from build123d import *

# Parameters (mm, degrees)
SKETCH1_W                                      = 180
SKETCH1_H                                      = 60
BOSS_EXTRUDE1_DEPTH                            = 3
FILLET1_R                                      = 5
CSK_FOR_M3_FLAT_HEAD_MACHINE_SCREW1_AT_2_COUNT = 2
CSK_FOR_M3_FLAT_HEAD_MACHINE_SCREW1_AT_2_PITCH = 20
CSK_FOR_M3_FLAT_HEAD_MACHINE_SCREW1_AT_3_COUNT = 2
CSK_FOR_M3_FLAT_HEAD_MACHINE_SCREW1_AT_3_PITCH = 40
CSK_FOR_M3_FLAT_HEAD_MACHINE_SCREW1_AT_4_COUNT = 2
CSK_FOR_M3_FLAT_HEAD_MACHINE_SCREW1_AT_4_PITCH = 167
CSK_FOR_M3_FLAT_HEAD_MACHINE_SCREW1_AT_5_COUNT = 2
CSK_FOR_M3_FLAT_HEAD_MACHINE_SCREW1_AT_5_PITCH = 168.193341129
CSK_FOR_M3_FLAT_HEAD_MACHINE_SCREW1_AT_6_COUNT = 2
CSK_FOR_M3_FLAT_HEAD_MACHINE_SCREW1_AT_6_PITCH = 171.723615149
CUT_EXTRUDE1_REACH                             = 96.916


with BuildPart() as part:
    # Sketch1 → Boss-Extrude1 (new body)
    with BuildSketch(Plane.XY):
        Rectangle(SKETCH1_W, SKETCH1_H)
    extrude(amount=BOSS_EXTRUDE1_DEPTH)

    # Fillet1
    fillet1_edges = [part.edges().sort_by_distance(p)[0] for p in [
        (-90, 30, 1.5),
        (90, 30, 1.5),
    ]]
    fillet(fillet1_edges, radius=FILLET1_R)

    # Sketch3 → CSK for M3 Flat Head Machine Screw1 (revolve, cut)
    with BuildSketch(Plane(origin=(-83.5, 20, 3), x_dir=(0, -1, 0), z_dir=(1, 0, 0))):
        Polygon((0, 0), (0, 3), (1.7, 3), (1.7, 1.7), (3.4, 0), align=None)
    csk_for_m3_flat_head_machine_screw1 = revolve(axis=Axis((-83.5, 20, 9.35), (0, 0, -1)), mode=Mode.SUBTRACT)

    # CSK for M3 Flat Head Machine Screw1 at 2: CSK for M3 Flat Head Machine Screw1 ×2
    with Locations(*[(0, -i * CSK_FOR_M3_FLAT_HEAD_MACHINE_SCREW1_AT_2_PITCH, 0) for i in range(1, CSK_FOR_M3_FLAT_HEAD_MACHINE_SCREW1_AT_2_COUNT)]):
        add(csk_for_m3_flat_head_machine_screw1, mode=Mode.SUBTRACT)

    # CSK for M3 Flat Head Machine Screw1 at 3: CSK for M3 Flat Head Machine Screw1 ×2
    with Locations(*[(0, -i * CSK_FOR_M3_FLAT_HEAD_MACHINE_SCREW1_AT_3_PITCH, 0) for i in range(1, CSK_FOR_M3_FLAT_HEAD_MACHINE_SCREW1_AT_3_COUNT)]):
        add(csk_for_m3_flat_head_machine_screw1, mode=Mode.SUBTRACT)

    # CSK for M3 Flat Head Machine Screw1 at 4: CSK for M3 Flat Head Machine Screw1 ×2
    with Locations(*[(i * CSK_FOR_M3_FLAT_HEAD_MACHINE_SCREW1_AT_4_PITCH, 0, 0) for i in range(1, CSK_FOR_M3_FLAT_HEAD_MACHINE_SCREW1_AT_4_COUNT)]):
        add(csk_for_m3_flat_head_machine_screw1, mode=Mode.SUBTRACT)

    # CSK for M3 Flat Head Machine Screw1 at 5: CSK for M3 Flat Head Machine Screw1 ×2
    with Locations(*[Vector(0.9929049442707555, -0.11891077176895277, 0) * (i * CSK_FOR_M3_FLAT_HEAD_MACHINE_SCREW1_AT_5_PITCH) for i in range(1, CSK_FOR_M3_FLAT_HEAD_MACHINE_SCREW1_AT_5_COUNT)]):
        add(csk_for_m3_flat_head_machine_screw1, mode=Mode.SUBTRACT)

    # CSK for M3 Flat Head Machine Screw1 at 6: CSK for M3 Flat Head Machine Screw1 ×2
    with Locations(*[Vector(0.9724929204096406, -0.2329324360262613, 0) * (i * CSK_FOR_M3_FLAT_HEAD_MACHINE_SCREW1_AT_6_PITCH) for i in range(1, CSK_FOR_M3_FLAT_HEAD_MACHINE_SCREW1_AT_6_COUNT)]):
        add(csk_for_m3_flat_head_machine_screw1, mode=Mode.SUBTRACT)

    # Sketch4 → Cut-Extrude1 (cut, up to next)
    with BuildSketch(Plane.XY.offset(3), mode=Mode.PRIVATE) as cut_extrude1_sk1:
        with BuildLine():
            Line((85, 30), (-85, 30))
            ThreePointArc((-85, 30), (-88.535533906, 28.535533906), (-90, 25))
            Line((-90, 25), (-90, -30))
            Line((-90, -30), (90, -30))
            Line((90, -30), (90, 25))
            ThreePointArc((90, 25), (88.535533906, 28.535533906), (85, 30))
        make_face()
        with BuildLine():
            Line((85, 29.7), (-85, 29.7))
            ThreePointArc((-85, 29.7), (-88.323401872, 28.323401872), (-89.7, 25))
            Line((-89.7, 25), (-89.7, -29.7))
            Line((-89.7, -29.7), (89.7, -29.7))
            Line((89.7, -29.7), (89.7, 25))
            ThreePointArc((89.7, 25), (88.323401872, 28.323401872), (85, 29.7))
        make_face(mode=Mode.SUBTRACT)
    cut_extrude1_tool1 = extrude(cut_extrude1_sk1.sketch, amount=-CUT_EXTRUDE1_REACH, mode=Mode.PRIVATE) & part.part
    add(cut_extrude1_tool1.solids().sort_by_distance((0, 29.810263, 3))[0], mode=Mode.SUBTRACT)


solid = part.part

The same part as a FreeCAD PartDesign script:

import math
import FreeCAD as App
import Part
import Sketcher

V = App.Vector
Q = App.Units.Quantity


def edges_at(feature, points):
    """Names of the edges that pass closest to the given points."""
    edges = feature.Shape.Edges
    near = lambda p: min(range(len(edges)), key=lambda i: edges[i].distToShape(Part.Vertex(*p))[0])
    return sorted({f"Edge{near(p) + 1}" for p in points})


def add_polygon(sketch, points):
    """Adds a closed chain of lines whose ends are joined by coincident constraints."""
    first, n = sketch.GeometryCount, len(points)
    for a, b in zip(points, points[1:] + points[:1]):
        sketch.addGeometry(Part.LineSegment(App.Vector(*a, 0), App.Vector(*b, 0)), False)
    for i in range(n):
        sketch.addConstraint(Sketcher.Constraint("Coincident", first + i, 2, first + (i + 1) % n, 1))

doc = App.newDocument("Part")
body = doc.addObject("PartDesign::Body", "Body")

# Sketch on XY plane
sketch1 = body.newObject("Sketcher::SketchObject", "Sketch")
sketch1.AttachmentSupport = (doc.getObject("XY_Plane"), [""])
sketch1.MapMode = "FlatFace"
add_polygon(sketch1, [(-90, 30), (-90, -30), (90, -30), (90, 30)])  # lines 0-3
sketch1.addConstraint(Sketcher.Constraint("Vertical", 0))
sketch1.addConstraint(Sketcher.Constraint("Horizontal", 1))
sketch1.addConstraint(Sketcher.Constraint("Vertical", 2))
sketch1.addConstraint(Sketcher.Constraint("Horizontal", 3))
sketch1.addConstraint(Sketcher.Constraint("Symmetric", 0, 2, 2, 2, -1, 1))
sketch1.addConstraint(Sketcher.Constraint("DistanceX", 1, 1, 1, 2, 180.0))
sketch1.addConstraint(Sketcher.Constraint("DistanceY", 0, 2, 0, 1, 60.0))
pad1 = body.newObject("PartDesign::Pad", "Pad")
pad1.Profile = sketch1
pad1.Length = 3
doc.recompute()

fillet = body.newObject("PartDesign::Fillet", "Fillet")
fillet.Base = (pad1, edges_at(pad1, [(-90, 30, 1.5), (90, 30, 1.5)]))
fillet.Radius = 5

# Sketch on YZ plane
sketch2 = body.newObject("Sketcher::SketchObject", "Sketch001")
sketch2.AttachmentSupport = (doc.getObject("YZ_Plane"), [""])
sketch2.MapMode = "FlatFace"
sketch2.AttachmentOffset = App.Placement(V(0, 0, -83.5), App.Rotation())
add_polygon(sketch2, [(20, 0), (20, 3), (16.6, 3), (18.3, 1.3), (18.3, 0)])  # lines 0-4
sketch2.addGeometry(Part.LineSegment(V(20, 3, 0), V(20, 0, 0)), True)  # axis
sketch2.addConstraint(Sketcher.Constraint("Vertical", 0))
sketch2.addConstraint(Sketcher.Constraint("Horizontal", 1))
sketch2.addConstraint(Sketcher.Constraint("Vertical", 3))
sketch2.addConstraint(Sketcher.Constraint("Horizontal", 4))
sketch2.addConstraint(Sketcher.Constraint("Vertical", 5))
sketch2.addConstraint(Sketcher.Constraint("Coincident", 5, 1, 0, 2))
sketch2.addConstraint(Sketcher.Constraint("PointOnObject", 3, 2, -1))
sketch2.addConstraint(Sketcher.Constraint("PointOnObject", 5, 2, -1))
sketch2.addConstraint(Sketcher.Constraint("DistanceY", 0, 1, 0, 2, 3.0))
sketch2.addConstraint(Sketcher.Constraint("Angle", 2, Q("-45 deg")))
sketch2.addConstraint(Sketcher.Constraint("DistanceX", 1, 2, 1, 1, 3.4))
sketch2.addConstraint(Sketcher.Constraint("DistanceX", 4, 1, 4, 2, 1.7))
sketch2.addConstraint(Sketcher.Constraint("DistanceX", -1, 1, 0, 2, 20.0))
groove = body.newObject("PartDesign::Groove", "Groove")
groove.Profile = sketch2
groove.ReferenceAxis = (sketch2, ["Axis0"])
groove.Angle = 360
doc.recompute()

linearpattern = body.newObject("PartDesign::LinearPattern", "LinearPattern")
linearpattern.Originals = [groove]
linearpattern.Direction = (doc.getObject("Y_Axis"), [""])
linearpattern.Mode = "offset"
linearpattern.Offset = 20
linearpattern.Occurrences = 2
linearpattern.Reversed = True
body.Tip = linearpattern
doc.recompute()

linearpattern2 = body.newObject("PartDesign::LinearPattern", "LinearPattern001")
linearpattern2.Originals = [groove]
linearpattern2.Direction = (doc.getObject("Y_Axis"), [""])
linearpattern2.Mode = "offset"
linearpattern2.Offset = 40
linearpattern2.Occurrences = 2
linearpattern2.Reversed = True
body.Tip = linearpattern2
doc.recompute()

linearpattern3 = body.newObject("PartDesign::LinearPattern", "LinearPattern002")
linearpattern3.Originals = [groove]
linearpattern3.Direction = (doc.getObject("X_Axis"), [""])
linearpattern3.Mode = "offset"
linearpattern3.Offset = 167
linearpattern3.Occurrences = 2
body.Tip = linearpattern3
doc.recompute()

datumline = body.newObject("PartDesign::Line", "DatumLine")
datumline.Placement = App.Placement(V(0, 0, 0), App.Rotation(V(0, 0, 1), V(0.992904944, -0.118910772, 0)))
linearpattern4 = body.newObject("PartDesign::LinearPattern", "LinearPattern003")
linearpattern4.Originals = [groove]
linearpattern4.Direction = (datumline, [""])
linearpattern4.Mode = "offset"
linearpattern4.Offset = 168.193341
linearpattern4.Occurrences = 2
body.Tip = linearpattern4
doc.recompute()

datumline2 = body.newObject("PartDesign::Line", "DatumLine001")
datumline2.Placement = App.Placement(V(0, 0, 0), App.Rotation(V(0, 0, 1), V(0.97249292, -0.232932436, 0)))
linearpattern5 = body.newObject("PartDesign::LinearPattern", "LinearPattern004")
linearpattern5.Originals = [groove]
linearpattern5.Direction = (datumline2, [""])
linearpattern5.Mode = "offset"
linearpattern5.Offset = 171.723615
linearpattern5.Occurrences = 2
body.Tip = linearpattern5

# Sketch on XY plane
sketch3 = body.newObject("Sketcher::SketchObject", "Sketch002")
sketch3.AttachmentSupport = (doc.getObject("XY_Plane"), [""])
sketch3.MapMode = "FlatFace"
sketch3.AttachmentOffset = App.Placement(V(0, 0, 3), App.Rotation())
sketch3.addGeometry(Part.LineSegment(V(85, 30, 0), V(-85, 30, 0)), False)
sketch3.addGeometry(Part.ArcOfCircle(Part.Circle(V(-85, 25, 0), V(0, 0, 1), 5), math.radians(90), math.radians(180)), False)
sketch3.addGeometry(Part.LineSegment(V(-90, 25, 0), V(-90, -30, 0)), False)
sketch3.addGeometry(Part.LineSegment(V(-90, -30, 0), V(90, -30, 0)), False)
sketch3.addGeometry(Part.LineSegment(V(90, -30, 0), V(90, 25, 0)), False)
sketch3.addGeometry(Part.ArcOfCircle(Part.Circle(V(85, 25, 0), V(0, 0, 1), 5), math.radians(0), math.radians(90)), False)
sketch3.addGeometry(Part.LineSegment(V(-85, 29.7, 0), V(85, 29.7, 0)), False)
sketch3.addGeometry(Part.ArcOfCircle(Part.Circle(V(85, 25, 0), V(0, 0, 1), 4.7), math.radians(0), math.radians(90)), False)
sketch3.addGeometry(Part.LineSegment(V(89.7, 25, 0), V(89.7, -29.7, 0)), False)
sketch3.addGeometry(Part.LineSegment(V(89.7, -29.7, 0), V(-89.7, -29.7, 0)), False)
sketch3.addGeometry(Part.LineSegment(V(-89.7, -29.7, 0), V(-89.7, 25, 0)), False)
sketch3.addGeometry(Part.ArcOfCircle(Part.Circle(V(-85, 25, 0), V(0, 0, 1), 4.7), math.radians(90), math.radians(180)), False)
sketch3.addConstraint(Sketcher.Constraint("Tangent", 0, 2, 1, 1))
sketch3.addConstraint(Sketcher.Constraint("Tangent", 1, 2, 2, 1))
sketch3.addConstraint(Sketcher.Constraint("Coincident", 2, 2, 3, 1))
sketch3.addConstraint(Sketcher.Constraint("Coincident", 3, 2, 4, 1))
sketch3.addConstraint(Sketcher.Constraint("Tangent", 4, 2, 5, 1))
sketch3.addConstraint(Sketcher.Constraint("Tangent", 5, 2, 0, 1))
sketch3.addConstraint(Sketcher.Constraint("Tangent", 6, 2, 7, 2))
sketch3.addConstraint(Sketcher.Constraint("Tangent", 7, 1, 8, 1))
sketch3.addConstraint(Sketcher.Constraint("Coincident", 8, 2, 9, 1))
sketch3.addConstraint(Sketcher.Constraint("Coincident", 9, 2, 10, 1))
sketch3.addConstraint(Sketcher.Constraint("Tangent", 10, 2, 11, 2))
sketch3.addConstraint(Sketcher.Constraint("Tangent", 11, 1, 6, 1))
sketch3.addConstraint(Sketcher.Constraint("Horizontal", 0))
sketch3.addConstraint(Sketcher.Constraint("Vertical", 2))
sketch3.addConstraint(Sketcher.Constraint("Horizontal", 3))
sketch3.addConstraint(Sketcher.Constraint("Vertical", 4))
sketch3.addConstraint(Sketcher.Constraint("Horizontal", 6))
sketch3.addConstraint(Sketcher.Constraint("Vertical", 8))
sketch3.addConstraint(Sketcher.Constraint("Horizontal", 9))
sketch3.addConstraint(Sketcher.Constraint("Vertical", 10))
sketch3.addConstraint(Sketcher.Constraint("Coincident", 7, 3, 5, 3))
sketch3.addConstraint(Sketcher.Constraint("Coincident", 11, 3, 1, 3))
sketch3.addConstraint(Sketcher.Constraint("Equal", 1, 5))
sketch3.addConstraint(Sketcher.Constraint("Radius", 1, 5.0))
sketch3.addConstraint(Sketcher.Constraint("Radius", 7, 4.7))
sketch3.addConstraint(Sketcher.Constraint("DistanceX", 0, 2, 0, 1, 170.0))
sketch3.addConstraint(Sketcher.Constraint("DistanceY", 2, 2, 2, 1, 55.0))
sketch3.addConstraint(Sketcher.Constraint("DistanceY", 8, 2, 8, 1, 54.7))
sketch3.addConstraint(Sketcher.Constraint("DistanceX", 1, 3, -1, 1, 85.0))
sketch3.addConstraint(Sketcher.Constraint("DistanceY", -1, 1, 1, 3, 25.0))
pocket1 = body.newObject("PartDesign::Pocket", "Pocket")
pocket1.Profile = sketch3
pocket1.Type = "UpToFirst"

doc.recompute()
